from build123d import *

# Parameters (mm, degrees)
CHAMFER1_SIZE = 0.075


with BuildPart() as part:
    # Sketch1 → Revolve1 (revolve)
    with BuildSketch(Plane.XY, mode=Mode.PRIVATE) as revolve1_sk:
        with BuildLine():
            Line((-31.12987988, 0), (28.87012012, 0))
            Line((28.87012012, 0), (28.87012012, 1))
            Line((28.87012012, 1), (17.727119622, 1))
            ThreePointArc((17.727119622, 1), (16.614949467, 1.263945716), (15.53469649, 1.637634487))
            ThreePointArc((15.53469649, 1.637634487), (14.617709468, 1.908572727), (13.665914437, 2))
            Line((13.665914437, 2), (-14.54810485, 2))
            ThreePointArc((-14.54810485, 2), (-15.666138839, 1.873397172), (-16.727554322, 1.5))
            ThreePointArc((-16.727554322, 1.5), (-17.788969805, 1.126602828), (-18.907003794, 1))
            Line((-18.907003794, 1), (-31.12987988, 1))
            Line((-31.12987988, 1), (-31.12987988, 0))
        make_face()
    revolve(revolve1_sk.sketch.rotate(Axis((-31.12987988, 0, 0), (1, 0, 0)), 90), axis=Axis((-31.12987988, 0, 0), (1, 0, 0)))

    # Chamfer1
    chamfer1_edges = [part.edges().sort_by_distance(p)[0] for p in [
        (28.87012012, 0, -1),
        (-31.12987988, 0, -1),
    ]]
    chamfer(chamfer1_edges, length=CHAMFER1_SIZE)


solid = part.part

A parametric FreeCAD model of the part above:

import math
import FreeCAD as App
import Part
import Sketcher


def edges_at(feature, points):
    """Names of the edges that pass closest to the given points."""
    edges = feature.Shape.Edges
    near = lambda p: min(range(len(edges)), key=lambda i: edges[i].distToShape(Part.Vertex(*p))[0])
    return sorted({f"Edge{near(p) + 1}" for p in points})

doc = App.newDocument("Part")
body = doc.addObject("PartDesign::Body", "Body")

# Sketch on XY plane
sketch1 = body.newObject("Sketcher::SketchObject", "Sketch")
sketch1.AttachmentSupport = (doc.getObject("XY_Plane"), [""])
sketch1.MapMode = "FlatFace"
sketch1.addGeometry(Part.LineSegment(App.Vector(-31.1, 0, 0), App.Vector(28.9, 0, 0)), False)
sketch1.addGeometry(Part.LineSegment(App.Vector(28.9, 0, 0), App.Vector(28.9, 1, 0)), False)
sketch1.addGeometry(Part.LineSegment(App.Vector(28.9, 1, 0), App.Vector(17.7, 1, 0)), False)
sketch1.addGeometry(Part.ArcOfCircle(Part.Circle(App.Vector(19.8, 12.2, 0), App.Vector(0, 0, 1), 11.4), math.radians(-111.95), math.radians(-100.49)), False)
sketch1.addGeometry(Part.ArcOfCircle(Part.Circle(App.Vector(13.7, -3, 0), App.Vector(0, 0, 1), 5), math.radians(68), math.radians(90)), False)
sketch1.addGeometry(Part.LineSegment(App.Vector(13.7, 2, 0), App.Vector(-14.5, 2, 0)), False)
sketch1.addGeometry(Part.ArcOfCircle(Part.Circle(App.Vector(-14.5, -3, 0), App.Vector(0, 0, 1), 5), math.radians(90), math.radians(116)), False)
sketch1.addGeometry(Part.ArcOfCircle(Part.Circle(App.Vector(-18.9, 6, 0), App.Vector(0, 0, 1), 5), math.radians(-90), math.radians(-64)), False)
sketch1.addGeometry(Part.LineSegment(App.Vector(-18.9, 1, 0), App.Vector(-31.1, 1, 0)), False)
sketch1.addGeometry(Part.LineSegment(App.Vector(-31.1, 1, 0), App.Vector(-31.1, 0, 0)), False)
sketch1.addConstraint(Sketcher.Constraint("Coincident", 0, 2, 1, 1))
sketch1.addConstraint(Sketcher.Constraint("Coincident", 1, 2, 2, 1))
sketch1.addConstraint(Sketcher.Constraint("Coincident", 2, 2, 3, 2))
sketch1.addConstraint(Sketcher.Constraint("Tangent", 3, 1, 4, 1))
sketch1.addConstraint(Sketcher.Constraint("Tangent", 4, 2, 5, 1))
sketch1.addConstraint(Sketcher.Constraint("Tangent", 5, 2, 6, 1))
sketch1.addConstraint(Sketcher.Constraint("Tangent", 6, 2, 7, 2))
sketch1.addConstraint(Sketcher.Constraint("Tangent", 7, 1, 8, 1))
sketch1.addConstraint(Sketcher.Constraint("Coincident", 8, 2, 9, 1))
sketch1.addConstraint(Sketcher.Constraint("Coincident", 9, 2, 0, 1))
sketch1.addConstraint(Sketcher.Constraint("Horizontal", 0))
sketch1.addConstraint(Sketcher.Constraint("Vertical", 1))
sketch1.addConstraint(Sketcher.Constraint("Horizontal", 2))
sketch1.addConstraint(Sketcher.Constraint("Horizontal", 5))
sketch1.addConstraint(Sketcher.Constraint("Horizontal", 8))
sketch1.addConstraint(Sketcher.Constraint("Vertical", 9))
sketch1.addConstraint(Sketcher.Constraint("Equal", 4, 6))
sketch1.addConstraint(Sketcher.Constraint("Equal", 6, 7))
sketch1.addConstraint(Sketcher.Constraint("PointOnObject", 0, 2, -1))
sketch1.addConstraint(Sketcher.Constraint("Horizontal", 2, 2, 7, 1))
sketch1.addConstraint(Sketcher.Constraint("Radius", 4, 5.0))
sketch1.addConstraint(Sketcher.Constraint("DistanceX", 0, 1, 0, 2, 60.0))
sketch1.addConstraint(Sketcher.Constraint("DistanceY", 1, 1, 1, 2, 1.0))
sketch1.addConstraint(Sketcher.Constraint("DistanceY", 4, 3, -1, 1, 3.0))
sketch1.addConstraint(Sketcher.Constraint("DistanceX", 2, 2, 2, 1, 11.143))
sketch1.addConstraint(Sketcher.Constraint("Radius", 3, 11.432214))
sketch1.addConstraint(Sketcher.Constraint("DistanceX", 5, 2, 5, 1, 28.214019))
sketch1.addConstraint(Sketcher.Constraint("DistanceX", 5, 2, 3, 1, 30.082801))
sketch1.addConstraint(Sketcher.Constraint("DistanceX", -1, 1, 3, 3, 19.80756))
revolution = body.newObject("PartDesign::Revolution", "Revolution")
revolution.Profile = sketch1
revolution.ReferenceAxis = (sketch1, ["H_Axis"])
revolution.Angle = 360
doc.recompute()

chamfer = body.newObject("PartDesign::Chamfer", "Chamfer")
chamfer.Base = (revolution, edges_at(revolution, [(28.87, 0, -1), (-31.13, 0, -1)]))
chamfer.Size = 0.075

doc.recompute()
